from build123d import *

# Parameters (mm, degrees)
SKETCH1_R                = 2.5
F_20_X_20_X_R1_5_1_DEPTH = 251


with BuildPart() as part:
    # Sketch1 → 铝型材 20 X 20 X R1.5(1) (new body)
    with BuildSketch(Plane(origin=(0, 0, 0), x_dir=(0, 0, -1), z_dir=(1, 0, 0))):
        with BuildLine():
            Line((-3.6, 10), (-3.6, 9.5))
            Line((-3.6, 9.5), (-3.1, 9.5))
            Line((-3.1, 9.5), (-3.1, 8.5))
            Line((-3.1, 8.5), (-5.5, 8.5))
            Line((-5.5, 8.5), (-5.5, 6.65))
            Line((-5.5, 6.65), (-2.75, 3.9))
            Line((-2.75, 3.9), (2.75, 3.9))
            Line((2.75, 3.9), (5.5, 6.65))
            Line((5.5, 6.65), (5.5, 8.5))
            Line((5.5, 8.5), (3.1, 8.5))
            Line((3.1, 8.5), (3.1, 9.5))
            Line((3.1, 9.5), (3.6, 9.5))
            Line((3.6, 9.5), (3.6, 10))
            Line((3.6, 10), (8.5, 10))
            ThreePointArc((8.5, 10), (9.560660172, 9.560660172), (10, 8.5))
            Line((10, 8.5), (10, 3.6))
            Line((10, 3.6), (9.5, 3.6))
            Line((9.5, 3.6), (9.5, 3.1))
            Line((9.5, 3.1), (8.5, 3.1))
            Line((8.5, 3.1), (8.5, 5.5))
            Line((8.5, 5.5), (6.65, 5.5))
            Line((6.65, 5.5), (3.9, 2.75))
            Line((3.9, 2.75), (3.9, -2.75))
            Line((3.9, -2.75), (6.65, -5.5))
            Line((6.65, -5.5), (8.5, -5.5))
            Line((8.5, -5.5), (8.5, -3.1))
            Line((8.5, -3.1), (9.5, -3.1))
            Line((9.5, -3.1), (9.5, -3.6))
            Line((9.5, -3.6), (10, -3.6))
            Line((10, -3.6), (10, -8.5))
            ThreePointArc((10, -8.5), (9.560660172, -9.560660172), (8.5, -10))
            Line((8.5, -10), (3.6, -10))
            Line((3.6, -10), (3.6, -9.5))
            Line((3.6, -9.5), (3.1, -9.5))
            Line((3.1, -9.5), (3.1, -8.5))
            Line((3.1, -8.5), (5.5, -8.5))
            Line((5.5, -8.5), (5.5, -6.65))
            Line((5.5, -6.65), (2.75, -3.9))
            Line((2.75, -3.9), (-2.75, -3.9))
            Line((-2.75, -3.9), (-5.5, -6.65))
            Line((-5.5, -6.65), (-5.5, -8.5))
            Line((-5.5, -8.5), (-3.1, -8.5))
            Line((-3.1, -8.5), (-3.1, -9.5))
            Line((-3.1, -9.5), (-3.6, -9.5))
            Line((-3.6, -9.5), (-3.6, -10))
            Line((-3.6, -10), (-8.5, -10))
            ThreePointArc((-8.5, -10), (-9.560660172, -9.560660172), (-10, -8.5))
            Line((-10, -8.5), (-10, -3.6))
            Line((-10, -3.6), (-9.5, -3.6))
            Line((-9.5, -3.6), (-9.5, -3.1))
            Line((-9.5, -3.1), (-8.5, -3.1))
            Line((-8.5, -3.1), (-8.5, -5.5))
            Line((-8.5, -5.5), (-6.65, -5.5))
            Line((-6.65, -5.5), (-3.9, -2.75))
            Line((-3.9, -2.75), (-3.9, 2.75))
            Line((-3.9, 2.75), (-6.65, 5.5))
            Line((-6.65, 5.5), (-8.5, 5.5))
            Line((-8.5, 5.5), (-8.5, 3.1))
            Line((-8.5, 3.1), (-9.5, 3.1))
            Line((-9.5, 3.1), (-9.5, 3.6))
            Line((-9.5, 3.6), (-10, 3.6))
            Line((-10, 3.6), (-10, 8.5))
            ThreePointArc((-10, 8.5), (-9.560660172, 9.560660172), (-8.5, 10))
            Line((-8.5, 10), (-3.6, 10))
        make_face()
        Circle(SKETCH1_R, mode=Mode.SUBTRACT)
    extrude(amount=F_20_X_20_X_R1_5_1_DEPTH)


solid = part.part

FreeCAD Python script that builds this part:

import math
import FreeCAD as App
import Part
import Sketcher
from FreeCAD import Vector
Q = App.Units.Quantity

doc = App.newDocument("Part")
body = doc.addObject("PartDesign::Body", "Body")

sketch1 = body.newObject("Sketcher::SketchObject", "Sketch")
sketch1.AttachmentSupport = (doc.getObject("YZ_Plane"), [""])
sketch1.MapMode = "FlatFace"
sketch1.addGeometry([
    Part.LineSegment(Vector(9.5, 3.6, 0), Vector(10, 3.6, 0)),
    Part.LineSegment(Vector(10, 3.6, 0), Vector(10, 8.5, 0)),
    Part.ArcOfCircle(Part.Circle(Vector(8.5, 8.5, 0), Vector(0, 0, 1), 1.5), math.radians(0), math.radians(90)),
    Part.LineSegment(Vector(8.5, 10, 0), Vector(3.6, 10, 0)),
    Part.LineSegment(Vector(3.6, 10, 0), Vector(3.6, 9.5, 0)),
    Part.LineSegment(Vector(3.6, 9.5, 0), Vector(3.1, 9.5, 0)),
    Part.LineSegment(Vector(3.1, 9.5, 0), Vector(3.1, 8.5, 0)),
    Part.LineSegment(Vector(3.1, 8.5, 0), Vector(5.5, 8.5, 0)),
    Part.LineSegment(Vector(5.5, 8.5, 0), Vector(5.5, 6.7, 0)),
    Part.LineSegment(Vector(5.5, 6.7, 0), Vector(2.8, 3.9, 0)),
    Part.LineSegment(Vector(2.8, 3.9, 0), Vector(-2.8, 3.9, 0)),
    Part.LineSegment(Vector(-2.8, 3.9, 0), Vector(-5.5, 6.7, 0)),
    Part.LineSegment(Vector(-5.5, 6.7, 0), Vector(-5.5, 8.5, 0)),
    Part.LineSegment(Vector(-5.5, 8.5, 0), Vector(-3.1, 8.5, 0)),
    Part.LineSegment(Vector(-3.1, 8.5, 0), Vector(-3.1, 9.5, 0)),
    Part.LineSegment(Vector(-3.1, 9.5, 0), Vector(-3.6, 9.5, 0)),
    Part.LineSegment(Vector(-3.6, 9.5, 0), Vector(-3.6, 10, 0)),
    Part.LineSegment(Vector(-3.6, 10, 0), Vector(-8.5, 10, 0)),
    Part.ArcOfCircle(Part.Circle(Vector(-8.5, 8.5, 0), Vector(0, 0, 1), 1.5), math.radians(90), math.radians(180)),
    Part.LineSegment(Vector(-10, 8.5, 0), Vector(-10, 3.6, 0)),
    Part.LineSegment(Vector(-10, 3.6, 0), Vector(-9.5, 3.6, 0)),
    Part.LineSegment(Vector(-9.5, 3.6, 0), Vector(-9.5, 3.1, 0)),
    Part.LineSegment(Vector(-9.5, 3.1, 0), Vector(-8.5, 3.1, 0)),
    Part.LineSegment(Vector(-8.5, 3.1, 0), Vector(-8.5, 5.5, 0)),
    Part.LineSegment(Vector(-8.5, 5.5, 0), Vector(-6.7, 5.5, 0)),
    Part.LineSegment(Vector(-6.7, 5.5, 0), Vector(-3.9, 2.8, 0)),
    Part.LineSegment(Vector(-3.9, 2.8, 0), Vector(-3.9, -2.8, 0)),
    Part.LineSegment(Vector(-3.9, -2.8, 0), Vector(-6.7, -5.5, 0)),
    Part.LineSegment(Vector(-6.7, -5.5, 0), Vector(-8.5, -5.5, 0)),
    Part.LineSegment(Vector(-8.5, -5.5, 0), Vector(-8.5, -3.1, 0)),
    Part.LineSegment(Vector(-8.5, -3.1, 0), Vector(-9.5, -3.1, 0)),
    Part.LineSegment(Vector(-9.5, -3.1, 0), Vector(-9.5, -3.6, 0)),
    Part.LineSegment(Vector(-9.5, -3.6, 0), Vector(-10, -3.6, 0)),
    Part.LineSegment(Vector(-10, -3.6, 0), Vector(-10, -8.5, 0)),
    Part.ArcOfCircle(Part.Circle(Vector(-8.5, -8.5, 0), Vector(0, 0, 1), 1.5), math.radians(180), math.radians(270)),
    Part.LineSegment(Vector(-8.5, -10, 0), Vector(-3.6, -10, 0)),
    Part.LineSegment(Vector(-3.6, -10, 0), Vector(-3.6, -9.5, 0)),
    Part.LineSegment(Vector(-3.6, -9.5, 0), Vector(-3.1, -9.5, 0)),
    Part.LineSegment(Vector(-3.1, -9.5, 0), Vector(-3.1, -8.5, 0)),
    Part.LineSegment(Vector(-3.1, -8.5, 0), Vector(-5.5, -8.5, 0)),
    Part.LineSegment(Vector(-5.5, -8.5, 0), Vector(-5.5, -6.7, 0)),
    Part.LineSegment(Vector(-5.5, -6.7, 0), Vector(-2.8, -3.9, 0)),
    Part.LineSegment(Vector(-2.8, -3.9, 0), Vector(2.8, -3.9, 0)),
    Part.LineSegment(Vector(2.8, -3.9, 0), Vector(5.5, -6.7, 0)),
    Part.LineSegment(Vector(5.5, -6.7, 0), Vector(5.5, -8.5, 0)),
    Part.LineSegment(Vector(5.5, -8.5, 0), Vector(3.1, -8.5, 0)),
    Part.LineSegment(Vector(3.1, -8.5, 0), Vector(3.1, -9.5, 0)),
    Part.LineSegment(Vector(3.1, -9.5, 0), Vector(3.6, -9.5, 0)),
    Part.LineSegment(Vector(3.6, -9.5, 0), Vector(3.6, -10, 0)),
    Part.LineSegment(Vector(3.6, -10, 0), Vector(8.5, -10, 0)),
    Part.ArcOfCircle(Part.Circle(Vector(8.5, -8.5, 0), Vector(0, 0, 1), 1.5), math.radians(-90), math.radians(0)),
    Part.LineSegment(Vector(10, -8.5, 0), Vector(10, -3.6, 0)),
    Part.LineSegment(Vector(10, -3.6, 0), Vector(9.5, -3.6, 0)),
    Part.LineSegment(Vector(9.5, -3.6, 0), Vector(9.5, -3.1, 0)),
    Part.LineSegment(Vector(9.5, -3.1, 0), Vector(8.5, -3.1, 0)),
    Part.LineSegment(Vector(8.5, -3.1, 0), Vector(8.5, -5.5, 0)),
    Part.LineSegment(Vector(8.5, -5.5, 0), Vector(6.7, -5.5, 0)),
    Part.LineSegment(Vector(6.7, -5.5, 0), Vector(3.9, -2.8, 0)),
    Part.LineSegment(Vector(3.9, -2.8, 0), Vector(3.9, 2.8, 0)),
    Part.LineSegment(Vector(3.9, 2.8, 0), Vector(6.7, 5.5, 0)),
    Part.LineSegment(Vector(6.7, 5.5, 0), Vector(8.5, 5.5, 0)),
    Part.LineSegment(Vector(8.5, 5.5, 0), Vector(8.5, 3.1, 0)),
    Part.LineSegment(Vector(8.5, 3.1, 0), Vector(9.5, 3.1, 0)),
    Part.LineSegment(Vector(9.5, 3.1, 0), Vector(9.5, 3.6, 0)),
    Part.Circle(Vector(0, 0, 0), Vector(0, 0, 1), 2.5),
], False)
sketch1.addConstraint([
    Sketcher.Constraint("Coincident", 0, 2, 1, 1),
    Sketcher.Constraint("Tangent", 1, 2, 2, 1),
    Sketcher.Constraint("Tangent", 2, 2, 3, 1),
    Sketcher.Constraint("Coincident", 3, 2, 4, 1),
    Sketcher.Constraint("Coincident", 4, 2, 5, 1),
    Sketcher.Constraint("Coincident", 5, 2, 6, 1),
    Sketcher.Constraint("Coincident", 6, 2, 7, 1),
    Sketcher.Constraint("Coincident", 7, 2, 8, 1),
    Sketcher.Constraint("Coincident", 8, 2, 9, 1),
    Sketcher.Constraint("Coincident", 9, 2, 10, 1),
    Sketcher.Constraint("Coincident", 10, 2, 11, 1),
    Sketcher.Constraint("Coincident", 11, 2, 12, 1),
    Sketcher.Constraint("Coincident", 12, 2, 13, 1),
    Sketcher.Constraint("Coincident", 13, 2, 14, 1),
    Sketcher.Constraint("Coincident", 14, 2, 15, 1),
    Sketcher.Constraint("Coincident", 15, 2, 16, 1),
    Sketcher.Constraint("Coincident", 16, 2, 17, 1),
    Sketcher.Constraint("Tangent", 17, 2, 18, 1),
    Sketcher.Constraint("Tangent", 18, 2, 19, 1),
    Sketcher.Constraint("Coincident", 19, 2, 20, 1),
    Sketcher.Constraint("Coincident", 20, 2, 21, 1),
    Sketcher.Constraint("Coincident", 21, 2, 22, 1),
    Sketcher.Constraint("Coincident", 22, 2, 23, 1),
    Sketcher.Constraint("Coincident", 23, 2, 24, 1),
    Sketcher.Constraint("Coincident", 24, 2, 25, 1),
    Sketcher.Constraint("Coincident", 25, 2, 26, 1),
    Sketcher.Constraint("Coincident", 26, 2, 27, 1),
    Sketcher.Constraint("Coincident", 27, 2, 28, 1),
    Sketcher.Constraint("Coincident", 28, 2, 29, 1),
    Sketcher.Constraint("Coincident", 29, 2, 30, 1),
    Sketcher.Constraint("Coincident", 30, 2, 31, 1),
    Sketcher.Constraint("Coincident", 31, 2, 32, 1),
    Sketcher.Constraint("Coincident", 32, 2, 33, 1),
    Sketcher.Constraint("Tangent", 33, 2, 34, 1),
    Sketcher.Constraint("Tangent", 34, 2, 35, 1),
    Sketcher.Constraint("Coincident", 35, 2, 36, 1),
    Sketcher.Constraint("Coincident", 36, 2, 37, 1),
    Sketcher.Constraint("Coincident", 37, 2, 38, 1),
    Sketcher.Constraint("Coincident", 38, 2, 39, 1),
    Sketcher.Constraint("Coincident", 39, 2, 40, 1),
    Sketcher.Constraint("Coincident", 40, 2, 41, 1),
    Sketcher.Constraint("Coincident", 41, 2, 42, 1),
    Sketcher.Constraint("Coincident", 42, 2, 43, 1),
    Sketcher.Constraint("Coincident", 43, 2, 44, 1),
    Sketcher.Constraint("Coincident", 44, 2, 45, 1),
    Sketcher.Constraint("Coincident", 45, 2, 46, 1),
    Sketcher.Constraint("Coincident", 46, 2, 47, 1),
    Sketcher.Constraint("Coincident", 47, 2, 48, 1),
    Sketcher.Constraint("Coincident", 48, 2, 49, 1),
    Sketcher.Constraint("Tangent", 49, 2, 50, 1),
    Sketcher.Constraint("Tangent", 50, 2, 51, 1),
    Sketcher.Constraint("Coincident", 51, 2, 52, 1),
    Sketcher.Constraint("Coincident", 52, 2, 53, 1),
    Sketcher.Constraint("Coincident", 53, 2, 54, 1),
    Sketcher.Constraint("Coincident", 54, 2, 55, 1),
    Sketcher.Constraint("Coincident", 55, 2, 56, 1),
    Sketcher.Constraint("Coincident", 56, 2, 57, 1),
    Sketcher.Constraint("Coincident", 57, 2, 58, 1),
    Sketcher.Constraint("Coincident", 58, 2, 59, 1),
    Sketcher.Constraint("Coincident", 59, 2, 60, 1),
    Sketcher.Constraint("Coincident", 60, 2, 61, 1),
    Sketcher.Constraint("Coincident", 61, 2, 62, 1),
    Sketcher.Constraint("Coincident", 62, 2, 63, 1),
    Sketcher.Constraint("Coincident", 63, 2, 0, 1),
    Sketcher.Constraint("Horizontal", 0),
    Sketcher.Constraint("Vertical", 1),
    Sketcher.Constraint("Horizontal", 3),
    Sketcher.Constraint("Vertical", 4),
    Sketcher.Constraint("Horizontal", 5),
    Sketcher.Constraint("Vertical", 6),
    Sketcher.Constraint("Horizontal", 7),
    Sketcher.Constraint("Vertical", 8),
    Sketcher.Constraint("Horizontal", 10),
    Sketcher.Constraint("Vertical", 12),
    Sketcher.Constraint("Horizontal", 13),
    Sketcher.Constraint("Vertical", 14),
    Sketcher.Constraint("Horizontal", 15),
    Sketcher.Constraint("Vertical", 16),
    Sketcher.Constraint("Horizontal", 17),
    Sketcher.Constraint("Vertical", 19),
    Sketcher.Constraint("Horizontal", 20),
    Sketcher.Constraint("Vertical", 21),
    Sketcher.Constraint("Horizontal", 22),
    Sketcher.Constraint("Vertical", 23),
    Sketcher.Constraint("Horizontal", 24),
    Sketcher.Constraint("Vertical", 26),
    Sketcher.Constraint("Horizontal", 28),
    Sketcher.Constraint("Vertical", 29),
    Sketcher.Constraint("Horizontal", 30),
    Sketcher.Constraint("Vertical", 31),
    Sketcher.Constraint("Horizontal", 32),
    Sketcher.Constraint("Vertical", 33),
    Sketcher.Constraint("Horizontal", 35),
    Sketcher.Constraint("Vertical", 36),
    Sketcher.Constraint("Horizontal", 37),
    Sketcher.Constraint("Vertical", 38),
    Sketcher.Constraint("Horizontal", 39),
    Sketcher.Constraint("Vertical", 40),
    Sketcher.Constraint("Horizontal", 42),
    Sketcher.Constraint("Vertical", 44),
    Sketcher.Constraint("Horizontal", 45),
    Sketcher.Constraint("Vertical", 46),
    Sketcher.Constraint("Horizontal", 47),
    Sketcher.Constraint("Vertical", 48),
    Sketcher.Constraint("Horizontal", 49),
    Sketcher.Constraint("Vertical", 51),
    Sketcher.Constraint("Horizontal", 52),
    Sketcher.Constraint("Vertical", 53),
    Sketcher.Constraint("Horizontal", 54),
    Sketcher.Constraint("Vertical", 55),
    Sketcher.Constraint("Horizontal", 56),
    Sketcher.Constraint("Vertical", 58),
    Sketcher.Constraint("Horizontal", 60),
    Sketcher.Constraint("Vertical", 61),
    Sketcher.Constraint("Horizontal", 62),
    Sketcher.Constraint("Vertical", 63),
    Sketcher.Constraint("Coincident", 64, 3, -1, 1),
    Sketcher.Constraint("Equal", 2, 18),
    Sketcher.Constraint("Equal", 18, 34),
    Sketcher.Constraint("Equal", 34, 50),
    Sketcher.Constraint("Symmetric", 2, 3, 34, 3, -1, 1),
    Sketcher.Constraint("Symmetric", 18, 3, 50, 3, -1, 1),
    Sketcher.Constraint("Symmetric", 4, 2, 36, 2, -1, 1),
    Sketcher.Constraint("Symmetric", 6, 2, 38, 2, -1, 1),
    Sketcher.Constraint("Symmetric", 8, 2, 40, 2, -1, 1),
    Sketcher.Constraint("Symmetric", 9, 2, 41, 2, -1, 1),
    Sketcher.Constraint("Symmetric", 11, 2, 43, 2, -1, 1),
    Sketcher.Constraint("Symmetric", 13, 2, 45, 2, -1, 1),
    Sketcher.Constraint("Symmetric", 15, 2, 47, 2, -1, 1),
    Sketcher.Constraint("Symmetric", 20, 2, 52, 2, -1, 1),
    Sketcher.Constraint("Symmetric", 22, 2, 54, 2, -1, 1),
    Sketcher.Constraint("Symmetric", 24, 2, 56, 2, -1, 1),
    Sketcher.Constraint("Symmetric", 25, 2, 57, 2, -1, 1),
    Sketcher.Constraint("Symmetric", 27, 2, 59, 2, -1, 1),
    Sketcher.Constraint("Symmetric", 29, 2, 61, 2, -1, 1),
    Sketcher.Constraint("Symmetric", 31, 2, 63, 2, -1, 1),
    Sketcher.Constraint("Symmetric", 2, 3, 18, 3, -2),
    Sketcher.Constraint("Symmetric", 8, 2, 11, 2, -2),
    Sketcher.Constraint("Symmetric", 6, 2, 13, 2, -2),
    Sketcher.Constraint("Symmetric", 4, 2, 15, 2, -2),
    Sketcher.Constraint("Symmetric", 31, 2, 52, 2, -2),
    Sketcher.Constraint("Symmetric", 29, 2, 54, 2, -2),
    Sketcher.Constraint("Symmetric", 27, 2, 56, 2, -2),
    Sketcher.Constraint("Perpendicular", 9, 11),
    Sketcher.Constraint("Parallel", 11, 25),
    Sketcher.Constraint("Perpendicular", 25, 27),
    Sketcher.Constraint("Perpendicular", 41, 43),
    Sketcher.Constraint("Perpendicular", 57, 59),
    Sketcher.Constraint("Horizontal", 1, 2, 6, 2),
    Sketcher.Constraint("Horizontal", 26, 2, 57, 2),
    Sketcher.Constraint("Vertical", 17, 2, 22, 2),
    Sketcher.Constraint("Equal", 0, 5),
    Sketcher.Constraint("Equal", 49, 1),
    Sketcher.Constraint("Equal", 52, 4),
    Sketcher.Constraint("Equal", 60, 8),
    Sketcher.Constraint("Equal", 16, 21),
    Sketcher.Constraint("Equal", 45, 23),
    Sketcher.Constraint("Equal", 42, 26),
    Sketcher.Constraint("Equal", 11, 25),
    Sketcher.Constraint("Diameter", 64, Q("5 mm")),
    Sketcher.Constraint("Radius", 2, Q("1.5 mm")),
    Sketcher.Constraint("DistanceX", 22, 1, 22, 2, Q("1 mm")),
    Sketcher.Constraint("DistanceX", 3, 2, 3, 1, Q("4.9 mm")),
    Sketcher.Constraint("DistanceX", 7, 1, 7, 2, Q("2.4 mm")),
    Sketcher.Constraint("DistanceX", 10, 2, 10, 1, Q("5.5 mm")),
    Sketcher.Constraint("DistanceX", -1, 1, 0, 2, Q("10 mm")),
    Sketcher.Constraint("DistanceX", 24, 1, 24, 2, Q("1.85 mm")),
])
pad1 = body.newObject("PartDesign::Pad", "Pad")
pad1.Profile = sketch1
pad1.Length = 251

doc.recompute()
